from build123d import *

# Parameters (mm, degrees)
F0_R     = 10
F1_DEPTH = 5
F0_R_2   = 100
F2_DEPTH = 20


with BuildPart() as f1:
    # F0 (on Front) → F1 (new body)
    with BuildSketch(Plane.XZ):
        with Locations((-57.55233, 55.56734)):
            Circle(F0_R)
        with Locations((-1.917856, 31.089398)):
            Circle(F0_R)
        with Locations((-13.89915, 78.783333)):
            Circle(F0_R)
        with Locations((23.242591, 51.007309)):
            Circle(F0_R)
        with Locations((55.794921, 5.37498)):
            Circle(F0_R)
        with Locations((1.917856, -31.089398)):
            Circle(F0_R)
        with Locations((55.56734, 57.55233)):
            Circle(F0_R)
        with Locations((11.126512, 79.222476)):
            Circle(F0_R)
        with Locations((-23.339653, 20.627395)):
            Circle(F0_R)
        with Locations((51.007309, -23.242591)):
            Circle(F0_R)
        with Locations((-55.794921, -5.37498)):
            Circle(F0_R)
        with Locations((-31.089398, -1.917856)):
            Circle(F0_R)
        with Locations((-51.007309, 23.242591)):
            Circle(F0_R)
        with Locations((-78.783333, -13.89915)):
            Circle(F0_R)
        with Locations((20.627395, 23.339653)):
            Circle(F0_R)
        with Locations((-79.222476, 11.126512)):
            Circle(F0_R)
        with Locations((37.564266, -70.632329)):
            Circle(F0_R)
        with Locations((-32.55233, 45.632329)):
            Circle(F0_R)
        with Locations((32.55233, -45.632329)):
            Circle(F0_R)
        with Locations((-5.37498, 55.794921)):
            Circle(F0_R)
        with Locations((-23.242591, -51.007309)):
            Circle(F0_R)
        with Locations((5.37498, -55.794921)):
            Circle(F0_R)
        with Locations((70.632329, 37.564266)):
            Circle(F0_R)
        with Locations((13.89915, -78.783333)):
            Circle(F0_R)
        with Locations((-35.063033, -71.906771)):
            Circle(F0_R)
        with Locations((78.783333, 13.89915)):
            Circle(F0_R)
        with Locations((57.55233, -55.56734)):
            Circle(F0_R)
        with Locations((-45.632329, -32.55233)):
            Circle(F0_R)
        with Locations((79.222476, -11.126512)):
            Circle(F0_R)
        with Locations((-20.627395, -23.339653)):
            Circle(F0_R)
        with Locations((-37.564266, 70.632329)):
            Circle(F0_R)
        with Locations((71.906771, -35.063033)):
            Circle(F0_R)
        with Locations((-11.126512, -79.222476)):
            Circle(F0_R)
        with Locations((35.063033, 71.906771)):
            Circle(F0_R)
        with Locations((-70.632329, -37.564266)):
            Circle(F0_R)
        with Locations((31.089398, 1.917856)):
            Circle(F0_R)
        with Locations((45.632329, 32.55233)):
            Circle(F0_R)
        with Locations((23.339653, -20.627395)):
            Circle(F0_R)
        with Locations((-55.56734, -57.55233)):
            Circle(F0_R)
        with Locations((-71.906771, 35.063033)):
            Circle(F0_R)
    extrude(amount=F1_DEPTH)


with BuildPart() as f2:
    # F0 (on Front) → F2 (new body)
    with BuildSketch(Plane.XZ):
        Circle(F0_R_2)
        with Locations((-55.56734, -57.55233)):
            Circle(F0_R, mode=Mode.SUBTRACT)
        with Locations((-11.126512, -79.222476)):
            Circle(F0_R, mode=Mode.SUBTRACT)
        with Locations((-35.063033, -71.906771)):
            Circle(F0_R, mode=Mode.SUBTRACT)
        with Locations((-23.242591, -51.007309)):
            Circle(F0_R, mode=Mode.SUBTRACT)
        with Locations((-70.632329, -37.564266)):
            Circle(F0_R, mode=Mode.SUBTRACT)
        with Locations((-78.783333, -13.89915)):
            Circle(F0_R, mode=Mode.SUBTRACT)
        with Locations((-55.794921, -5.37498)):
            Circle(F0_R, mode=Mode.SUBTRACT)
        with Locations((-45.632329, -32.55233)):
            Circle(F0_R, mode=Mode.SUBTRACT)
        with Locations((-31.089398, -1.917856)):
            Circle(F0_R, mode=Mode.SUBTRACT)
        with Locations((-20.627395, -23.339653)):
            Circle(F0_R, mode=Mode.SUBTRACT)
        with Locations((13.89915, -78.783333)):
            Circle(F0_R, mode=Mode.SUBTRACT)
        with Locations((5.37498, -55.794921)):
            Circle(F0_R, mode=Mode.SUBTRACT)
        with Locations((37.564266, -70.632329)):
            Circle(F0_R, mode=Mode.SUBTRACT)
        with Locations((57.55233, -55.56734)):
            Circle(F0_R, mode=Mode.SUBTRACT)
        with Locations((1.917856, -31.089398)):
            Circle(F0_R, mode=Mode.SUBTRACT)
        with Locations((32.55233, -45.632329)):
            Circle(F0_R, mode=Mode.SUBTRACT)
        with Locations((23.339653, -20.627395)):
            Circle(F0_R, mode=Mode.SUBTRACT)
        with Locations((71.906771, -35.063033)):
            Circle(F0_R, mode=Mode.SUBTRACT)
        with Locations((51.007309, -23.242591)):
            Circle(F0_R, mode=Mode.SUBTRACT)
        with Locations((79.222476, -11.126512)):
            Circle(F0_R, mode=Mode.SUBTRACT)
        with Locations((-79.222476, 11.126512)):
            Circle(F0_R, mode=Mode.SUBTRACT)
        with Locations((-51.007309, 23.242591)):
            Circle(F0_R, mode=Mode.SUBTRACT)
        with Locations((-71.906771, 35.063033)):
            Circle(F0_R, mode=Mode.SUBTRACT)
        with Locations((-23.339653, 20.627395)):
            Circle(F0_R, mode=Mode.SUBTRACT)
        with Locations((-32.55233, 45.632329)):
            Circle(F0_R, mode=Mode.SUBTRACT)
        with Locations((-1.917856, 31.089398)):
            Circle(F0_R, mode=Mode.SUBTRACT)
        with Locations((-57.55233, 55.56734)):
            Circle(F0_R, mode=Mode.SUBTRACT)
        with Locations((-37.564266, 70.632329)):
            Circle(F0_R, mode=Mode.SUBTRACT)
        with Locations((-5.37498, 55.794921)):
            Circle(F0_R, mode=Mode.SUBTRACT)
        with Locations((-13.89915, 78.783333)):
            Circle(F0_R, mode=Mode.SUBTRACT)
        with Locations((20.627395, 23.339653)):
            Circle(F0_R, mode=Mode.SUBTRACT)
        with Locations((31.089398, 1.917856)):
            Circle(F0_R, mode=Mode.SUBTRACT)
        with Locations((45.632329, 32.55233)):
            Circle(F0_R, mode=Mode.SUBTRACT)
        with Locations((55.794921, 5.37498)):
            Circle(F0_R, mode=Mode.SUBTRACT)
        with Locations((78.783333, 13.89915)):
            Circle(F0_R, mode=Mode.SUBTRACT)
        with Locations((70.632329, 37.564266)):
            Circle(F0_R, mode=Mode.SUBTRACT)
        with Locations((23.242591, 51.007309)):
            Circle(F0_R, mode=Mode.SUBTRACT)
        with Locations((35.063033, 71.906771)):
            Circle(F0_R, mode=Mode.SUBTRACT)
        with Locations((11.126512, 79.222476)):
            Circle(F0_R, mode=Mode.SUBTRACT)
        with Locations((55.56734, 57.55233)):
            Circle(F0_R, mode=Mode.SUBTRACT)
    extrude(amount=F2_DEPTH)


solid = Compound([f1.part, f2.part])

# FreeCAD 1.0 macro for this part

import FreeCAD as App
import Part
import Sketcher

V = App.Vector
Q = App.Units.Quantity

doc = App.newDocument("Part")
body = doc.addObject("PartDesign::Body", "Body")
body.AllowCompound = True

# Sketch on XZ plane
sketch1 = body.newObject("Sketcher::SketchObject", "Sketch")
sketch1.AttachmentSupport = (doc.getObject("XZ_Plane"), [""])
sketch1.MapMode = "FlatFace"
sketch1.addGeometry(Part.Circle(V(-58, 56, 0), V(0, 0, 1), 10), False)
sketch1.addGeometry(Part.Circle(V(-2, 31, 0), V(0, 0, 1), 10), False)
sketch1.addGeometry(Part.Circle(V(-14, 79, 0), V(0, 0, 1), 10), False)
sketch1.addGeometry(Part.Circle(V(23, 51, 0), V(0, 0, 1), 10), False)
sketch1.addGeometry(Part.Circle(V(56, 5, 0), V(0, 0, 1), 10), False)
sketch1.addGeometry(Part.Circle(V(2, -31, 0), V(0, 0, 1), 10), False)
sketch1.addGeometry(Part.Circle(V(56, 58, 0), V(0, 0, 1), 10), False)
sketch1.addGeometry(Part.Circle(V(11, 79, 0), V(0, 0, 1), 10), False)
sketch1.addGeometry(Part.Circle(V(-23, 21, 0), V(0, 0, 1), 10), False)
sketch1.addGeometry(Part.Circle(V(51, -23, 0), V(0, 0, 1), 10), False)
sketch1.addGeometry(Part.Circle(V(-56, -5, 0), V(0, 0, 1), 10), False)
sketch1.addGeometry(Part.Circle(V(-31, -2, 0), V(0, 0, 1), 10), False)
sketch1.addGeometry(Part.Circle(V(-51, 23, 0), V(0, 0, 1), 10), False)
sketch1.addGeometry(Part.Circle(V(-79, -14, 0), V(0, 0, 1), 10), False)
sketch1.addGeometry(Part.Circle(V(21, 23, 0), V(0, 0, 1), 10), False)
sketch1.addGeometry(Part.Circle(V(-79, 11, 0), V(0, 0, 1), 10), False)
sketch1.addGeometry(Part.Circle(V(38, -71, 0), V(0, 0, 1), 10), False)
sketch1.addGeometry(Part.Circle(V(-33, 46, 0), V(0, 0, 1), 10), False)
sketch1.addGeometry(Part.Circle(V(33, -46, 0), V(0, 0, 1), 10), False)
sketch1.addGeometry(Part.Circle(V(-5, 56, 0), V(0, 0, 1), 10), False)
sketch1.addGeometry(Part.Circle(V(-23, -51, 0), V(0, 0, 1), 10), False)
sketch1.addGeometry(Part.Circle(V(5, -56, 0), V(0, 0, 1), 10), False)
sketch1.addGeometry(Part.Circle(V(71, 38, 0), V(0, 0, 1), 10), False)
sketch1.addGeometry(Part.Circle(V(14, -79, 0), V(0, 0, 1), 10), False)
sketch1.addGeometry(Part.Circle(V(-35, -72, 0), V(0, 0, 1), 10), False)
sketch1.addGeometry(Part.Circle(V(79, 14, 0), V(0, 0, 1), 10), False)
sketch1.addGeometry(Part.Circle(V(58, -56, 0), V(0, 0, 1), 10), False)
sketch1.addGeometry(Part.Circle(V(-46, -33, 0), V(0, 0, 1), 10), False)
sketch1.addGeometry(Part.Circle(V(79, -11, 0), V(0, 0, 1), 10), False)
sketch1.addGeometry(Part.Circle(V(-21, -23, 0), V(0, 0, 1), 10), False)
sketch1.addGeometry(Part.Circle(V(-38, 71, 0), V(0, 0, 1), 10), False)
sketch1.addGeometry(Part.Circle(V(72, -35, 0), V(0, 0, 1), 10), False)
sketch1.addGeometry(Part.Circle(V(-11, -79, 0), V(0, 0, 1), 10), False)
sketch1.addGeometry(Part.Circle(V(35, 72, 0), V(0, 0, 1), 10), False)
sketch1.addGeometry(Part.Circle(V(-71, -38, 0), V(0, 0, 1), 10), False)
sketch1.addGeometry(Part.Circle(V(31, 2, 0), V(0, 0, 1), 10), False)
sketch1.addGeometry(Part.Circle(V(46, 33, 0), V(0, 0, 1), 10), False)
sketch1.addGeometry(Part.Circle(V(23, -21, 0), V(0, 0, 1), 10), False)
sketch1.addGeometry(Part.Circle(V(-56, -58, 0), V(0, 0, 1), 10), False)
sketch1.addGeometry(Part.Circle(V(-72, 35, 0), V(0, 0, 1), 10), False)
sketch1.addConstraint(Sketcher.Constraint("Equal", 0, 1))
sketch1.addConstraint(Sketcher.Constraint("Equal", 1, 2))
sketch1.addConstraint(Sketcher.Constraint("Equal", 2, 3))
sketch1.addConstraint(Sketcher.Constraint("Equal", 3, 4))
sketch1.addConstraint(Sketcher.Constraint("Equal", 4, 5))
sketch1.addConstraint(Sketcher.Constraint("Equal", 5, 6))
sketch1.addConstraint(Sketcher.Constraint("Equal", 6, 7))
sketch1.addConstraint(Sketcher.Constraint("Equal", 7, 8))
sketch1.addConstraint(Sketcher.Constraint("Equal", 8, 9))
sketch1.addConstraint(Sketcher.Constraint("Equal", 9, 10))
sketch1.addConstraint(Sketcher.Constraint("Equal", 10, 11))
sketch1.addConstraint(Sketcher.Constraint("Equal", 11, 12))
sketch1.addConstraint(Sketcher.Constraint("Equal", 12, 13))
sketch1.addConstraint(Sketcher.Constraint("Equal", 13, 14))
sketch1.addConstraint(Sketcher.Constraint("Equal", 14, 15))
sketch1.addConstraint(Sketcher.Constraint("Equal", 15, 16))
sketch1.addConstraint(Sketcher.Constraint("Equal", 16, 17))
sketch1.addConstraint(Sketcher.Constraint("Equal", 17, 18))
sketch1.addConstraint(Sketcher.Constraint("Equal", 18, 19))
sketch1.addConstraint(Sketcher.Constraint("Equal", 19, 20))
sketch1.addConstraint(Sketcher.Constraint("Equal", 20, 21))
sketch1.addConstraint(Sketcher.Constraint("Equal", 21, 22))
sketch1.addConstraint(Sketcher.Constraint("Equal", 22, 23))
sketch1.addConstraint(Sketcher.Constraint("Equal", 23, 24))
sketch1.addConstraint(Sketcher.Constraint("Equal", 24, 25))
sketch1.addConstraint(Sketcher.Constraint("Equal", 25, 26))
sketch1.addConstraint(Sketcher.Constraint("Equal", 26, 27))
sketch1.addConstraint(Sketcher.Constraint("Equal", 27, 28))
sketch1.addConstraint(Sketcher.Constraint("Equal", 28, 29))
sketch1.addConstraint(Sketcher.Constraint("Equal", 29, 30))
sketch1.addConstraint(Sketcher.Constraint("Equal", 30, 31))
sketch1.addConstraint(Sketcher.Constraint("Equal", 31, 32))
sketch1.addConstraint(Sketcher.Constraint("Equal", 32, 33))
sketch1.addConstraint(Sketcher.Constraint("Equal", 33, 34))
sketch1.addConstraint(Sketcher.Constraint("Equal", 34, 35))
sketch1.addConstraint(Sketcher.Constraint("Equal", 35, 36))
sketch1.addConstraint(Sketcher.Constraint("Equal", 36, 37))
sketch1.addConstraint(Sketcher.Constraint("Equal", 37, 38))
sketch1.addConstraint(Sketcher.Constraint("Equal", 38, 39))
sketch1.addConstraint(Sketcher.Constraint("Symmetric", 1, 3, 5, 3, -1, 1))
sketch1.addConstraint(Sketcher.Constraint("Symmetric", 4, 3, 10, 3, -1, 1))
sketch1.addConstraint(Sketcher.Constraint("Symmetric", 9, 3, 12, 3, -1, 1))
sketch1.addConstraint(Sketcher.Constraint("Symmetric", 17, 3, 18, 3, -1, 1))
sketch1.addConstraint(Sketcher.Constraint("Symmetric", 3, 3, 20, 3, -1, 1))
sketch1.addConstraint(Sketcher.Constraint("Symmetric", 19, 3, 21, 3, -1, 1))
sketch1.addConstraint(Sketcher.Constraint("Symmetric", 2, 3, 23, 3, -1, 1))
sketch1.addConstraint(Sketcher.Constraint("Symmetric", 13, 3, 25, 3, -1, 1))
sketch1.addConstraint(Sketcher.Constraint("Symmetric", 0, 3, 26, 3, -1, 1))
sketch1.addConstraint(Sketcher.Constraint("Symmetric", 15, 3, 28, 3, -1, 1))
sketch1.addConstraint(Sketcher.Constraint("Symmetric", 14, 3, 29, 3, -1, 1))
sketch1.addConstraint(Sketcher.Constraint("Symmetric", 16, 3, 30, 3, -1, 1))
sketch1.addConstraint(Sketcher.Constraint("Symmetric", 7, 3, 32, 3, -1, 1))
sketch1.addConstraint(Sketcher.Constraint("Symmetric", 24, 3, 33, 3, -1, 1))
sketch1.addConstraint(Sketcher.Constraint("Symmetric", 22, 3, 34, 3, -1, 1))
sketch1.addConstraint(Sketcher.Constraint("Symmetric", 11, 3, 35, 3, -1, 1))
sketch1.addConstraint(Sketcher.Constraint("Symmetric", 27, 3, 36, 3, -1, 1))
sketch1.addConstraint(Sketcher.Constraint("Symmetric", 8, 3, 37, 3, -1, 1))
sketch1.addConstraint(Sketcher.Constraint("Symmetric", 6, 3, 38, 3, -1, 1))
sketch1.addConstraint(Sketcher.Constraint("Symmetric", 31, 3, 39, 3, -1, 1))
sketch1.addConstraint(Sketcher.Constraint("Diameter", 0, Q("20 mm")))
sketch1.addConstraint(Sketcher.Constraint("DistanceX", 0, 3, 17, 3, Q("25 mm")))
sketch1.addConstraint(Sketcher.Constraint("DistanceY", 16, 3, 18, 3, Q("25 mm")))
sketch1.addConstraint(Sketcher.Constraint("DistanceX", 34, 3, 27, 3, Q("25 mm")))
sketch1.addConstraint(Sketcher.Constraint("DistanceY", 36, 3, 6, 3, Q("25 mm")))
sketch1.addConstraint(Sketcher.Constraint("DistanceY", 9, 3, 3, 3, Q("74.2499 mm")))
sketch1.addConstraint(Sketcher.Constraint("DistanceX", 0, 3, -1, 1, Q("57.55233 mm")))
sketch1.addConstraint(Sketcher.Constraint("DistanceY", -1, 1, 0, 3, Q("55.56734 mm")))
sketch1.addConstraint(Sketcher.Constraint("DistanceX", 2, 3, -1, 1, Q("13.89915 mm")))
sketch1.addConstraint(Sketcher.Constraint("DistanceX", -1, 1, 3, 3, Q("23.242591 mm")))
sketch1.addConstraint(Sketcher.Constraint("DistanceY", -1, 1, 3, 3, Q("51.007309 mm")))
sketch1.addConstraint(Sketcher.Constraint("DistanceX", -1, 1, 4, 3, Q("55.794921 mm")))
sketch1.addConstraint(Sketcher.Constraint("DistanceY", -1, 1, 4, 3, Q("5.37498 mm")))
sketch1.addConstraint(Sketcher.Constraint("DistanceX", -1, 1, 6, 3, Q("55.56734 mm")))
sketch1.addConstraint(Sketcher.Constraint("DistanceY", -1, 1, 6, 3, Q("57.55233 mm")))
sketch1.addConstraint(Sketcher.Constraint("DistanceX", -1, 1, 9, 3, Q("51.007309 mm")))
sketch1.addConstraint(Sketcher.Constraint("DistanceY", 13, 3, -1, 1, Q("13.89915 mm")))
sketch1.addConstraint(Sketcher.Constraint("DistanceY", 16, 3, -1, 1, Q("70.632329 mm")))
sketch1.addConstraint(Sketcher.Constraint("DistanceX", 19, 3, -1, 1, Q("5.37498 mm")))
sketch1.addConstraint(Sketcher.Constraint("DistanceY", -1, 1, 19, 3, Q("55.794921 mm")))
sketch1.addConstraint(Sketcher.Constraint("DistanceX", -1, 1, 22, 3, Q("70.632329 mm")))
sketch1.addConstraint(Sketcher.Constraint("DistanceY", 24, 3, -1, 1, Q("71.906771 mm")))
sketch1.addConstraint(Sketcher.Constraint("DistanceX", -1, 1, 31, 3, Q("71.906771 mm")))
sketch1.addConstraint(Sketcher.Constraint("DistanceY", 1, 3, 3, 3, Q("19.917911 mm")))
sketch1.addConstraint(Sketcher.Constraint("DistanceX", 1, 3, 5, 3, Q("3.835712 mm")))
sketch1.addConstraint(Sketcher.Constraint("DistanceY", 5, 3, 2, 3, Q("109.872731 mm")))
sketch1.addConstraint(Sketcher.Constraint("DistanceX", 7, 3, 3, 3, Q("12.116079 mm")))
sketch1.addConstraint(Sketcher.Constraint("DistanceX", 8, 3, 5, 3, Q("25.257509 mm")))
sketch1.addConstraint(Sketcher.Constraint("DistanceY", 11, 3, 8, 3, Q("22.545251 mm")))
sketch1.addConstraint(Sketcher.Constraint("DistanceX", 11, 3, 1, 3, Q("29.171542 mm")))
sketch1.addConstraint(Sketcher.Constraint("DistanceY", 5, 3, 11, 3, Q("29.171542 mm")))
sketch1.addConstraint(Sketcher.Constraint("DistanceX", 13, 3, 10, 3, Q("22.988412 mm")))
sketch1.addConstraint(Sketcher.Constraint("DistanceX", 1, 3, 14, 3, Q("22.545251 mm")))
sketch1.addConstraint(Sketcher.Constraint("DistanceY", 10, 3, 15, 3, Q("16.501492 mm")))
sketch1.addConstraint(Sketcher.Constraint("DistanceX", 5, 3, 16, 3, Q("35.64641 mm")))
sketch1.addConstraint(Sketcher.Constraint("DistanceY", 16, 3, 14, 3, Q("93.971982 mm")))
sketch1.addConstraint(Sketcher.Constraint("DistanceX", 24, 3, 20, 3, Q("11.820442 mm")))
sketch1.addConstraint(Sketcher.Constraint("DistanceY", 28, 3, 22, 3, Q("48.690778 mm")))
sketch1.addConstraint(Sketcher.Constraint("DistanceY", 31, 3, 9, 3, Q("11.820442 mm")))
sketch1.addConstraint(Sketcher.Constraint("DistanceY", -1, 1, 7, 3, Q("79.222476 mm")))
sketch1.addConstraint(Sketcher.Constraint("DistanceX", 15, 3, -1, 1, Q("79.222476 mm")))
pad1 = body.newObject("PartDesign::Pad", "Pad")
pad1.Profile = sketch1
pad1.Length = 5
body2 = doc.addObject("PartDesign::Body", "Body001")

# Sketch on XZ plane
sketch2 = body2.newObject("Sketcher::SketchObject", "Sketch001")
sketch2.AttachmentSupport = (doc.getObject("XZ_Plane001"), [""])
sketch2.MapMode = "FlatFace"
sketch2.addGeometry(Part.Circle(V(0, 0, 0), V(0, 0, 1), 100), False)
sketch2.addGeometry(Part.Circle(V(-56, -58, 0), V(0, 0, 1), 10), False)
sketch2.addGeometry(Part.Circle(V(-35, -72, 0), V(0, 0, 1), 10), False)
sketch2.addGeometry(Part.Circle(V(-11, -79, 0), V(0, 0, 1), 10), False)
sketch2.addGeometry(Part.Circle(V(-23, -51, 0), V(0, 0, 1), 10), False)
sketch2.addGeometry(Part.Circle(V(-71, -38, 0), V(0, 0, 1), 10), False)
sketch2.addGeometry(Part.Circle(V(-46, -33, 0), V(0, 0, 1), 10), False)
sketch2.addGeometry(Part.Circle(V(-79, -14, 0), V(0, 0, 1), 10), False)
sketch2.addGeometry(Part.Circle(V(-56, -5, 0), V(0, 0, 1), 10), False)
sketch2.addGeometry(Part.Circle(V(-21, -23, 0), V(0, 0, 1), 10), False)
sketch2.addGeometry(Part.Circle(V(-31, -2, 0), V(0, 0, 1), 10), False)
sketch2.addGeometry(Part.Circle(V(14, -79, 0), V(0, 0, 1), 10), False)
sketch2.addGeometry(Part.Circle(V(38, -71, 0), V(0, 0, 1), 10), False)
sketch2.addGeometry(Part.Circle(V(5, -56, 0), V(0, 0, 1), 10), False)
sketch2.addGeometry(Part.Circle(V(33, -46, 0), V(0, 0, 1), 10), False)
sketch2.addGeometry(Part.Circle(V(58, -56, 0), V(0, 0, 1), 10), False)
sketch2.addGeometry(Part.Circle(V(2, -31, 0), V(0, 0, 1), 10), False)
sketch2.addGeometry(Part.Circle(V(23, -21, 0), V(0, 0, 1), 10), False)
sketch2.addGeometry(Part.Circle(V(51, -23, 0), V(0, 0, 1), 10), False)
sketch2.addGeometry(Part.Circle(V(72, -35, 0), V(0, 0, 1), 10), False)
sketch2.addGeometry(Part.Circle(V(79, -11, 0), V(0, 0, 1), 10), False)
sketch2.addGeometry(Part.Circle(V(-79, 11, 0), V(0, 0, 1), 10), False)
sketch2.addGeometry(Part.Circle(V(-72, 35, 0), V(0, 0, 1), 10), False)
sketch2.addGeometry(Part.Circle(V(-51, 23, 0), V(0, 0, 1), 10), False)
sketch2.addGeometry(Part.Circle(V(-23, 21, 0), V(0, 0, 1), 10), False)
sketch2.addGeometry(Part.Circle(V(-2, 31, 0), V(0, 0, 1), 10), False)
sketch2.addGeometry(Part.Circle(V(-58, 56, 0), V(0, 0, 1), 10), False)
sketch2.addGeometry(Part.Circle(V(-33, 46, 0), V(0, 0, 1), 10), False)
sketch2.addGeometry(Part.Circle(V(-5, 56, 0), V(0, 0, 1), 10), False)
sketch2.addGeometry(Part.Circle(V(-38, 71, 0), V(0, 0, 1), 10), False)
sketch2.addGeometry(Part.Circle(V(-14, 79, 0), V(0, 0, 1), 10), False)
sketch2.addGeometry(Part.Circle(V(31, 2, 0), V(0, 0, 1), 10), False)
sketch2.addGeometry(Part.Circle(V(21, 23, 0), V(0, 0, 1), 10), False)
sketch2.addGeometry(Part.Circle(V(56, 5, 0), V(0, 0, 1), 10), False)
sketch2.addGeometry(Part.Circle(V(79, 14, 0), V(0, 0, 1), 10), False)
sketch2.addGeometry(Part.Circle(V(46, 33, 0), V(0, 0, 1), 10), False)
sketch2.addGeometry(Part.Circle(V(71, 38, 0), V(0, 0, 1), 10), False)
sketch2.addGeometry(Part.Circle(V(23, 51, 0), V(0, 0, 1), 10), False)
sketch2.addGeometry(Part.Circle(V(11, 79, 0), V(0, 0, 1), 10), False)
sketch2.addGeometry(Part.Circle(V(35, 72, 0), V(0, 0, 1), 10), False)
sketch2.addGeometry(Part.Circle(V(56, 58, 0), V(0, 0, 1), 10), False)
sketch2.addConstraint(Sketcher.Constraint("Coincident", 0, 3, -1, 1))
sketch2.addConstraint(Sketcher.Constraint("Equal", 1, 2))
sketch2.addConstraint(Sketcher.Constraint("Equal", 2, 3))
sketch2.addConstraint(Sketcher.Constraint("Equal", 3, 4))
sketch2.addConstraint(Sketcher.Constraint("Equal", 4, 5))
sketch2.addConstraint(Sketcher.Constraint("Equal", 5, 6))
sketch2.addConstraint(Sketcher.Constraint("Equal", 6, 7))
sketch2.addConstraint(Sketcher.Constraint("Equal", 7, 8))
sketch2.addConstraint(Sketcher.Constraint("Equal", 8, 9))
sketch2.addConstraint(Sketcher.Constraint("Equal", 9, 10))
sketch2.addConstraint(Sketcher.Constraint("Equal", 10, 11))
sketch2.addConstraint(Sketcher.Constraint("Equal", 11, 12))
sketch2.addConstraint(Sketcher.Constraint("Equal", 12, 13))
sketch2.addConstraint(Sketcher.Constraint("Equal", 13, 14))
sketch2.addConstraint(Sketcher.Constraint("Equal", 14, 15))
sketch2.addConstraint(Sketcher.Constraint("Equal", 15, 16))
sketch2.addConstraint(Sketcher.Constraint("Equal", 16, 17))
sketch2.addConstraint(Sketcher.Constraint("Equal", 17, 18))
sketch2.addConstraint(Sketcher.Constraint("Equal", 18, 19))
sketch2.addConstraint(Sketcher.Constraint("Equal", 19, 20))
sketch2.addConstraint(Sketcher.Constraint("Equal", 20, 21))
sketch2.addConstraint(Sketcher.Constraint("Equal", 21, 22))
sketch2.addConstraint(Sketcher.Constraint("Equal", 22, 23))
sketch2.addConstraint(Sketcher.Constraint("Equal", 23, 24))
sketch2.addConstraint(Sketcher.Constraint("Equal", 24, 25))
sketch2.addConstraint(Sketcher.Constraint("Equal", 25, 26))
sketch2.addConstraint(Sketcher.Constraint("Equal", 26, 27))
sketch2.addConstraint(Sketcher.Constraint("Equal", 27, 28))
sketch2.addConstraint(Sketcher.Constraint("Equal", 28, 29))
sketch2.addConstraint(Sketcher.Constraint("Equal", 29, 30))
sketch2.addConstraint(Sketcher.Constraint("Equal", 30, 31))
sketch2.addConstraint(Sketcher.Constraint("Equal", 31, 32))
sketch2.addConstraint(Sketcher.Constraint("Equal", 32, 33))
sketch2.addConstraint(Sketcher.Constraint("Equal", 33, 34))
sketch2.addConstraint(Sketcher.Constraint("Equal", 34, 35))
sketch2.addConstraint(Sketcher.Constraint("Equal", 35, 36))
sketch2.addConstraint(Sketcher.Constraint("Equal", 36, 37))
sketch2.addConstraint(Sketcher.Constraint("Equal", 37, 38))
sketch2.addConstraint(Sketcher.Constraint("Equal", 38, 39))
sketch2.addConstraint(Sketcher.Constraint("Equal", 39, 40))
sketch2.addConstraint(Sketcher.Constraint("Symmetric", 20, 3, 21, 3, -1, 1))
sketch2.addConstraint(Sketcher.Constraint("Symmetric", 19, 3, 22, 3, -1, 1))
sketch2.addConstraint(Sketcher.Constraint("Symmetric", 18, 3, 23, 3, -1, 1))
sketch2.addConstraint(Sketcher.Constraint("Symmetric", 17, 3, 24, 3, -1, 1))
sketch2.addConstraint(Sketcher.Constraint("Symmetric", 16, 3, 25, 3, -1, 1))
sketch2.addConstraint(Sketcher.Constraint("Symmetric", 15, 3, 26, 3, -1, 1))
sketch2.addConstraint(Sketcher.Constraint("Symmetric", 14, 3, 27, 3, -1, 1))
sketch2.addConstraint(Sketcher.Constraint("Symmetric", 13, 3, 28, 3, -1, 1))
sketch2.addConstraint(Sketcher.Constraint("Symmetric", 12, 3, 29, 3, -1, 1))
sketch2.addConstraint(Sketcher.Constraint("Symmetric", 11, 3, 30, 3, -1, 1))
sketch2.addConstraint(Sketcher.Constraint("Symmetric", 10, 3, 31, 3, -1, 1))
sketch2.addConstraint(Sketcher.Constraint("Symmetric", 9, 3, 32, 3, -1, 1))
sketch2.addConstraint(Sketcher.Constraint("Symmetric", 8, 3, 33, 3, -1, 1))
sketch2.addConstraint(Sketcher.Constraint("Symmetric", 7, 3, 34, 3, -1, 1))
sketch2.addConstraint(Sketcher.Constraint("Symmetric", 6, 3, 35, 3, -1, 1))
sketch2.addConstraint(Sketcher.Constraint("Symmetric", 5, 3, 36, 3, -1, 1))
sketch2.addConstraint(Sketcher.Constraint("Symmetric", 4, 3, 37, 3, -1, 1))
sketch2.addConstraint(Sketcher.Constraint("Symmetric", 3, 3, 38, 3, -1, 1))
sketch2.addConstraint(Sketcher.Constraint("Symmetric", 2, 3, 39, 3, -1, 1))
sketch2.addConstraint(Sketcher.Constraint("Symmetric", 1, 3, 40, 3, -1, 1))
sketch2.addConstraint(Sketcher.Constraint("Diameter", 0, Q("200 mm")))
sketch2.addConstraint(Sketcher.Constraint("Diameter", 1, Q("20 mm")))
sketch2.addConstraint(Sketcher.Constraint("DistanceX", 5, 3, 6, 3, Q("25 mm")))
sketch2.addConstraint(Sketcher.Constraint("DistanceY", 1, 3, 6, 3, Q("25 mm")))
sketch2.addConstraint(Sketcher.Constraint("DistanceY", 12, 3, 14, 3, Q("25 mm")))
sketch2.addConstraint(Sketcher.Constraint("DistanceX", 14, 3, 15, 3, Q("25 mm")))
sketch2.addConstraint(Sketcher.Constraint("DistanceX", 7, 3, 2, 3, Q("43.7203 mm")))
sketch2.addConstraint(Sketcher.Constraint("DistanceX", 2, 3, 12, 3, Q("72.627299 mm")))
sketch2.addConstraint(Sketcher.Constraint("DistanceX", 1, 3, -1, 1, Q("55.56734 mm")))
sketch2.addConstraint(Sketcher.Constraint("DistanceY", 1, 3, -1, 1, Q("57.55233 mm")))
sketch2.addConstraint(Sketcher.Constraint("DistanceY", 2, 3, -1, 1, Q("71.906771 mm")))
sketch2.addConstraint(Sketcher.Constraint("DistanceX", 4, 3, -1, 1, Q("23.242591 mm")))
sketch2.addConstraint(Sketcher.Constraint("DistanceY", 4, 3, -1, 1, Q("51.007309 mm")))
sketch2.addConstraint(Sketcher.Constraint("DistanceX", 5, 3, -1, 1, Q("70.632329 mm")))
sketch2.addConstraint(Sketcher.Constraint("DistanceY", 7, 3, -1, 1, Q("13.89915 mm")))
sketch2.addConstraint(Sketcher.Constraint("DistanceX", 8, 3, -1, 1, Q("55.794921 mm")))
sketch2.addConstraint(Sketcher.Constraint("DistanceY", 8, 3, -1, 1, Q("5.37498 mm")))
sketch2.addConstraint(Sketcher.Constraint("DistanceX", -1, 1, 11, 3, Q("13.89915 mm")))
sketch2.addConstraint(Sketcher.Constraint("DistanceY", 12, 3, -1, 1, Q("70.632329 mm")))
sketch2.addConstraint(Sketcher.Constraint("DistanceX", -1, 1, 13, 3, Q("5.37498 mm")))
sketch2.addConstraint(Sketcher.Constraint("DistanceY", 13, 3, -1, 1, Q("55.794921 mm")))
sketch2.addConstraint(Sketcher.Constraint("DistanceX", -1, 1, 14, 3, Q("32.55233 mm")))
sketch2.addConstraint(Sketcher.Constraint("DistanceY", 15, 3, -1, 1, Q("55.56734 mm")))
sketch2.addConstraint(Sketcher.Constraint("DistanceX", -1, 1, 18, 3, Q("51.007309 mm")))
sketch2.addConstraint(Sketcher.Constraint("DistanceY", 18, 3, -1, 1, Q("23.242591 mm")))
sketch2.addConstraint(Sketcher.Constraint("DistanceX", -1, 1, 19, 3, Q("71.906771 mm")))
sketch2.addConstraint(Sketcher.Constraint("DistanceX", 2, 3, 3, 3, Q("23.936521 mm")))
sketch2.addConstraint(Sketcher.Constraint("DistanceX", 1, 3, 3, 3, Q("44.440828 mm")))
sketch2.addConstraint(Sketcher.Constraint("DistanceY", 3, 3, 5, 3, Q("41.65821 mm")))
sketch2.addConstraint(Sketcher.Constraint("DistanceX", 6, 3, 10, 3, Q("14.542931 mm")))
sketch2.addConstraint(Sketcher.Constraint("DistanceY", 11, 3, 2, 3, Q("6.876562 mm")))
sketch2.addConstraint(Sketcher.Constraint("DistanceY", 11, 3, 9, 3, Q("55.44368 mm")))
sketch2.addConstraint(Sketcher.Constraint("DistanceX", 9, 3, 12, 3, Q("58.191661 mm")))
sketch2.addConstraint(Sketcher.Constraint("DistanceX", 9, 3, 16, 3, Q("22.545251 mm")))
sketch2.addConstraint(Sketcher.Constraint("DistanceY", 4, 3, 16, 3, Q("19.917911 mm")))
sketch2.addConstraint(Sketcher.Constraint("DistanceY", 19, 3, 18, 3, Q("11.820442 mm")))
sketch2.addConstraint(Sketcher.Constraint("DistanceX", 17, 3, 19, 3, Q("48.567118 mm")))
sketch2.addConstraint(Sketcher.Constraint("DistanceY", 19, 3, 20, 3, Q("23.936521 mm")))
sketch2.addConstraint(Sketcher.Constraint("DistanceY", 5, 3, 21, 3, Q("48.690778 mm")))
sketch2.addConstraint(Sketcher.Constraint("DistanceY", 10, 3, 22, 3, Q("36.980889 mm")))
sketch2.addConstraint(Sketcher.Constraint("DistanceY", 10, 3, 24, 3, Q("22.545251 mm")))
sketch2.addConstraint(Sketcher.Constraint("DistanceX", -1, 1, 20, 3, Q("79.222476 mm")))
pad2 = body2.newObject("PartDesign::Pad", "Pad001")
pad2.Profile = sketch2
pad2.Length = 20

doc.recompute()
